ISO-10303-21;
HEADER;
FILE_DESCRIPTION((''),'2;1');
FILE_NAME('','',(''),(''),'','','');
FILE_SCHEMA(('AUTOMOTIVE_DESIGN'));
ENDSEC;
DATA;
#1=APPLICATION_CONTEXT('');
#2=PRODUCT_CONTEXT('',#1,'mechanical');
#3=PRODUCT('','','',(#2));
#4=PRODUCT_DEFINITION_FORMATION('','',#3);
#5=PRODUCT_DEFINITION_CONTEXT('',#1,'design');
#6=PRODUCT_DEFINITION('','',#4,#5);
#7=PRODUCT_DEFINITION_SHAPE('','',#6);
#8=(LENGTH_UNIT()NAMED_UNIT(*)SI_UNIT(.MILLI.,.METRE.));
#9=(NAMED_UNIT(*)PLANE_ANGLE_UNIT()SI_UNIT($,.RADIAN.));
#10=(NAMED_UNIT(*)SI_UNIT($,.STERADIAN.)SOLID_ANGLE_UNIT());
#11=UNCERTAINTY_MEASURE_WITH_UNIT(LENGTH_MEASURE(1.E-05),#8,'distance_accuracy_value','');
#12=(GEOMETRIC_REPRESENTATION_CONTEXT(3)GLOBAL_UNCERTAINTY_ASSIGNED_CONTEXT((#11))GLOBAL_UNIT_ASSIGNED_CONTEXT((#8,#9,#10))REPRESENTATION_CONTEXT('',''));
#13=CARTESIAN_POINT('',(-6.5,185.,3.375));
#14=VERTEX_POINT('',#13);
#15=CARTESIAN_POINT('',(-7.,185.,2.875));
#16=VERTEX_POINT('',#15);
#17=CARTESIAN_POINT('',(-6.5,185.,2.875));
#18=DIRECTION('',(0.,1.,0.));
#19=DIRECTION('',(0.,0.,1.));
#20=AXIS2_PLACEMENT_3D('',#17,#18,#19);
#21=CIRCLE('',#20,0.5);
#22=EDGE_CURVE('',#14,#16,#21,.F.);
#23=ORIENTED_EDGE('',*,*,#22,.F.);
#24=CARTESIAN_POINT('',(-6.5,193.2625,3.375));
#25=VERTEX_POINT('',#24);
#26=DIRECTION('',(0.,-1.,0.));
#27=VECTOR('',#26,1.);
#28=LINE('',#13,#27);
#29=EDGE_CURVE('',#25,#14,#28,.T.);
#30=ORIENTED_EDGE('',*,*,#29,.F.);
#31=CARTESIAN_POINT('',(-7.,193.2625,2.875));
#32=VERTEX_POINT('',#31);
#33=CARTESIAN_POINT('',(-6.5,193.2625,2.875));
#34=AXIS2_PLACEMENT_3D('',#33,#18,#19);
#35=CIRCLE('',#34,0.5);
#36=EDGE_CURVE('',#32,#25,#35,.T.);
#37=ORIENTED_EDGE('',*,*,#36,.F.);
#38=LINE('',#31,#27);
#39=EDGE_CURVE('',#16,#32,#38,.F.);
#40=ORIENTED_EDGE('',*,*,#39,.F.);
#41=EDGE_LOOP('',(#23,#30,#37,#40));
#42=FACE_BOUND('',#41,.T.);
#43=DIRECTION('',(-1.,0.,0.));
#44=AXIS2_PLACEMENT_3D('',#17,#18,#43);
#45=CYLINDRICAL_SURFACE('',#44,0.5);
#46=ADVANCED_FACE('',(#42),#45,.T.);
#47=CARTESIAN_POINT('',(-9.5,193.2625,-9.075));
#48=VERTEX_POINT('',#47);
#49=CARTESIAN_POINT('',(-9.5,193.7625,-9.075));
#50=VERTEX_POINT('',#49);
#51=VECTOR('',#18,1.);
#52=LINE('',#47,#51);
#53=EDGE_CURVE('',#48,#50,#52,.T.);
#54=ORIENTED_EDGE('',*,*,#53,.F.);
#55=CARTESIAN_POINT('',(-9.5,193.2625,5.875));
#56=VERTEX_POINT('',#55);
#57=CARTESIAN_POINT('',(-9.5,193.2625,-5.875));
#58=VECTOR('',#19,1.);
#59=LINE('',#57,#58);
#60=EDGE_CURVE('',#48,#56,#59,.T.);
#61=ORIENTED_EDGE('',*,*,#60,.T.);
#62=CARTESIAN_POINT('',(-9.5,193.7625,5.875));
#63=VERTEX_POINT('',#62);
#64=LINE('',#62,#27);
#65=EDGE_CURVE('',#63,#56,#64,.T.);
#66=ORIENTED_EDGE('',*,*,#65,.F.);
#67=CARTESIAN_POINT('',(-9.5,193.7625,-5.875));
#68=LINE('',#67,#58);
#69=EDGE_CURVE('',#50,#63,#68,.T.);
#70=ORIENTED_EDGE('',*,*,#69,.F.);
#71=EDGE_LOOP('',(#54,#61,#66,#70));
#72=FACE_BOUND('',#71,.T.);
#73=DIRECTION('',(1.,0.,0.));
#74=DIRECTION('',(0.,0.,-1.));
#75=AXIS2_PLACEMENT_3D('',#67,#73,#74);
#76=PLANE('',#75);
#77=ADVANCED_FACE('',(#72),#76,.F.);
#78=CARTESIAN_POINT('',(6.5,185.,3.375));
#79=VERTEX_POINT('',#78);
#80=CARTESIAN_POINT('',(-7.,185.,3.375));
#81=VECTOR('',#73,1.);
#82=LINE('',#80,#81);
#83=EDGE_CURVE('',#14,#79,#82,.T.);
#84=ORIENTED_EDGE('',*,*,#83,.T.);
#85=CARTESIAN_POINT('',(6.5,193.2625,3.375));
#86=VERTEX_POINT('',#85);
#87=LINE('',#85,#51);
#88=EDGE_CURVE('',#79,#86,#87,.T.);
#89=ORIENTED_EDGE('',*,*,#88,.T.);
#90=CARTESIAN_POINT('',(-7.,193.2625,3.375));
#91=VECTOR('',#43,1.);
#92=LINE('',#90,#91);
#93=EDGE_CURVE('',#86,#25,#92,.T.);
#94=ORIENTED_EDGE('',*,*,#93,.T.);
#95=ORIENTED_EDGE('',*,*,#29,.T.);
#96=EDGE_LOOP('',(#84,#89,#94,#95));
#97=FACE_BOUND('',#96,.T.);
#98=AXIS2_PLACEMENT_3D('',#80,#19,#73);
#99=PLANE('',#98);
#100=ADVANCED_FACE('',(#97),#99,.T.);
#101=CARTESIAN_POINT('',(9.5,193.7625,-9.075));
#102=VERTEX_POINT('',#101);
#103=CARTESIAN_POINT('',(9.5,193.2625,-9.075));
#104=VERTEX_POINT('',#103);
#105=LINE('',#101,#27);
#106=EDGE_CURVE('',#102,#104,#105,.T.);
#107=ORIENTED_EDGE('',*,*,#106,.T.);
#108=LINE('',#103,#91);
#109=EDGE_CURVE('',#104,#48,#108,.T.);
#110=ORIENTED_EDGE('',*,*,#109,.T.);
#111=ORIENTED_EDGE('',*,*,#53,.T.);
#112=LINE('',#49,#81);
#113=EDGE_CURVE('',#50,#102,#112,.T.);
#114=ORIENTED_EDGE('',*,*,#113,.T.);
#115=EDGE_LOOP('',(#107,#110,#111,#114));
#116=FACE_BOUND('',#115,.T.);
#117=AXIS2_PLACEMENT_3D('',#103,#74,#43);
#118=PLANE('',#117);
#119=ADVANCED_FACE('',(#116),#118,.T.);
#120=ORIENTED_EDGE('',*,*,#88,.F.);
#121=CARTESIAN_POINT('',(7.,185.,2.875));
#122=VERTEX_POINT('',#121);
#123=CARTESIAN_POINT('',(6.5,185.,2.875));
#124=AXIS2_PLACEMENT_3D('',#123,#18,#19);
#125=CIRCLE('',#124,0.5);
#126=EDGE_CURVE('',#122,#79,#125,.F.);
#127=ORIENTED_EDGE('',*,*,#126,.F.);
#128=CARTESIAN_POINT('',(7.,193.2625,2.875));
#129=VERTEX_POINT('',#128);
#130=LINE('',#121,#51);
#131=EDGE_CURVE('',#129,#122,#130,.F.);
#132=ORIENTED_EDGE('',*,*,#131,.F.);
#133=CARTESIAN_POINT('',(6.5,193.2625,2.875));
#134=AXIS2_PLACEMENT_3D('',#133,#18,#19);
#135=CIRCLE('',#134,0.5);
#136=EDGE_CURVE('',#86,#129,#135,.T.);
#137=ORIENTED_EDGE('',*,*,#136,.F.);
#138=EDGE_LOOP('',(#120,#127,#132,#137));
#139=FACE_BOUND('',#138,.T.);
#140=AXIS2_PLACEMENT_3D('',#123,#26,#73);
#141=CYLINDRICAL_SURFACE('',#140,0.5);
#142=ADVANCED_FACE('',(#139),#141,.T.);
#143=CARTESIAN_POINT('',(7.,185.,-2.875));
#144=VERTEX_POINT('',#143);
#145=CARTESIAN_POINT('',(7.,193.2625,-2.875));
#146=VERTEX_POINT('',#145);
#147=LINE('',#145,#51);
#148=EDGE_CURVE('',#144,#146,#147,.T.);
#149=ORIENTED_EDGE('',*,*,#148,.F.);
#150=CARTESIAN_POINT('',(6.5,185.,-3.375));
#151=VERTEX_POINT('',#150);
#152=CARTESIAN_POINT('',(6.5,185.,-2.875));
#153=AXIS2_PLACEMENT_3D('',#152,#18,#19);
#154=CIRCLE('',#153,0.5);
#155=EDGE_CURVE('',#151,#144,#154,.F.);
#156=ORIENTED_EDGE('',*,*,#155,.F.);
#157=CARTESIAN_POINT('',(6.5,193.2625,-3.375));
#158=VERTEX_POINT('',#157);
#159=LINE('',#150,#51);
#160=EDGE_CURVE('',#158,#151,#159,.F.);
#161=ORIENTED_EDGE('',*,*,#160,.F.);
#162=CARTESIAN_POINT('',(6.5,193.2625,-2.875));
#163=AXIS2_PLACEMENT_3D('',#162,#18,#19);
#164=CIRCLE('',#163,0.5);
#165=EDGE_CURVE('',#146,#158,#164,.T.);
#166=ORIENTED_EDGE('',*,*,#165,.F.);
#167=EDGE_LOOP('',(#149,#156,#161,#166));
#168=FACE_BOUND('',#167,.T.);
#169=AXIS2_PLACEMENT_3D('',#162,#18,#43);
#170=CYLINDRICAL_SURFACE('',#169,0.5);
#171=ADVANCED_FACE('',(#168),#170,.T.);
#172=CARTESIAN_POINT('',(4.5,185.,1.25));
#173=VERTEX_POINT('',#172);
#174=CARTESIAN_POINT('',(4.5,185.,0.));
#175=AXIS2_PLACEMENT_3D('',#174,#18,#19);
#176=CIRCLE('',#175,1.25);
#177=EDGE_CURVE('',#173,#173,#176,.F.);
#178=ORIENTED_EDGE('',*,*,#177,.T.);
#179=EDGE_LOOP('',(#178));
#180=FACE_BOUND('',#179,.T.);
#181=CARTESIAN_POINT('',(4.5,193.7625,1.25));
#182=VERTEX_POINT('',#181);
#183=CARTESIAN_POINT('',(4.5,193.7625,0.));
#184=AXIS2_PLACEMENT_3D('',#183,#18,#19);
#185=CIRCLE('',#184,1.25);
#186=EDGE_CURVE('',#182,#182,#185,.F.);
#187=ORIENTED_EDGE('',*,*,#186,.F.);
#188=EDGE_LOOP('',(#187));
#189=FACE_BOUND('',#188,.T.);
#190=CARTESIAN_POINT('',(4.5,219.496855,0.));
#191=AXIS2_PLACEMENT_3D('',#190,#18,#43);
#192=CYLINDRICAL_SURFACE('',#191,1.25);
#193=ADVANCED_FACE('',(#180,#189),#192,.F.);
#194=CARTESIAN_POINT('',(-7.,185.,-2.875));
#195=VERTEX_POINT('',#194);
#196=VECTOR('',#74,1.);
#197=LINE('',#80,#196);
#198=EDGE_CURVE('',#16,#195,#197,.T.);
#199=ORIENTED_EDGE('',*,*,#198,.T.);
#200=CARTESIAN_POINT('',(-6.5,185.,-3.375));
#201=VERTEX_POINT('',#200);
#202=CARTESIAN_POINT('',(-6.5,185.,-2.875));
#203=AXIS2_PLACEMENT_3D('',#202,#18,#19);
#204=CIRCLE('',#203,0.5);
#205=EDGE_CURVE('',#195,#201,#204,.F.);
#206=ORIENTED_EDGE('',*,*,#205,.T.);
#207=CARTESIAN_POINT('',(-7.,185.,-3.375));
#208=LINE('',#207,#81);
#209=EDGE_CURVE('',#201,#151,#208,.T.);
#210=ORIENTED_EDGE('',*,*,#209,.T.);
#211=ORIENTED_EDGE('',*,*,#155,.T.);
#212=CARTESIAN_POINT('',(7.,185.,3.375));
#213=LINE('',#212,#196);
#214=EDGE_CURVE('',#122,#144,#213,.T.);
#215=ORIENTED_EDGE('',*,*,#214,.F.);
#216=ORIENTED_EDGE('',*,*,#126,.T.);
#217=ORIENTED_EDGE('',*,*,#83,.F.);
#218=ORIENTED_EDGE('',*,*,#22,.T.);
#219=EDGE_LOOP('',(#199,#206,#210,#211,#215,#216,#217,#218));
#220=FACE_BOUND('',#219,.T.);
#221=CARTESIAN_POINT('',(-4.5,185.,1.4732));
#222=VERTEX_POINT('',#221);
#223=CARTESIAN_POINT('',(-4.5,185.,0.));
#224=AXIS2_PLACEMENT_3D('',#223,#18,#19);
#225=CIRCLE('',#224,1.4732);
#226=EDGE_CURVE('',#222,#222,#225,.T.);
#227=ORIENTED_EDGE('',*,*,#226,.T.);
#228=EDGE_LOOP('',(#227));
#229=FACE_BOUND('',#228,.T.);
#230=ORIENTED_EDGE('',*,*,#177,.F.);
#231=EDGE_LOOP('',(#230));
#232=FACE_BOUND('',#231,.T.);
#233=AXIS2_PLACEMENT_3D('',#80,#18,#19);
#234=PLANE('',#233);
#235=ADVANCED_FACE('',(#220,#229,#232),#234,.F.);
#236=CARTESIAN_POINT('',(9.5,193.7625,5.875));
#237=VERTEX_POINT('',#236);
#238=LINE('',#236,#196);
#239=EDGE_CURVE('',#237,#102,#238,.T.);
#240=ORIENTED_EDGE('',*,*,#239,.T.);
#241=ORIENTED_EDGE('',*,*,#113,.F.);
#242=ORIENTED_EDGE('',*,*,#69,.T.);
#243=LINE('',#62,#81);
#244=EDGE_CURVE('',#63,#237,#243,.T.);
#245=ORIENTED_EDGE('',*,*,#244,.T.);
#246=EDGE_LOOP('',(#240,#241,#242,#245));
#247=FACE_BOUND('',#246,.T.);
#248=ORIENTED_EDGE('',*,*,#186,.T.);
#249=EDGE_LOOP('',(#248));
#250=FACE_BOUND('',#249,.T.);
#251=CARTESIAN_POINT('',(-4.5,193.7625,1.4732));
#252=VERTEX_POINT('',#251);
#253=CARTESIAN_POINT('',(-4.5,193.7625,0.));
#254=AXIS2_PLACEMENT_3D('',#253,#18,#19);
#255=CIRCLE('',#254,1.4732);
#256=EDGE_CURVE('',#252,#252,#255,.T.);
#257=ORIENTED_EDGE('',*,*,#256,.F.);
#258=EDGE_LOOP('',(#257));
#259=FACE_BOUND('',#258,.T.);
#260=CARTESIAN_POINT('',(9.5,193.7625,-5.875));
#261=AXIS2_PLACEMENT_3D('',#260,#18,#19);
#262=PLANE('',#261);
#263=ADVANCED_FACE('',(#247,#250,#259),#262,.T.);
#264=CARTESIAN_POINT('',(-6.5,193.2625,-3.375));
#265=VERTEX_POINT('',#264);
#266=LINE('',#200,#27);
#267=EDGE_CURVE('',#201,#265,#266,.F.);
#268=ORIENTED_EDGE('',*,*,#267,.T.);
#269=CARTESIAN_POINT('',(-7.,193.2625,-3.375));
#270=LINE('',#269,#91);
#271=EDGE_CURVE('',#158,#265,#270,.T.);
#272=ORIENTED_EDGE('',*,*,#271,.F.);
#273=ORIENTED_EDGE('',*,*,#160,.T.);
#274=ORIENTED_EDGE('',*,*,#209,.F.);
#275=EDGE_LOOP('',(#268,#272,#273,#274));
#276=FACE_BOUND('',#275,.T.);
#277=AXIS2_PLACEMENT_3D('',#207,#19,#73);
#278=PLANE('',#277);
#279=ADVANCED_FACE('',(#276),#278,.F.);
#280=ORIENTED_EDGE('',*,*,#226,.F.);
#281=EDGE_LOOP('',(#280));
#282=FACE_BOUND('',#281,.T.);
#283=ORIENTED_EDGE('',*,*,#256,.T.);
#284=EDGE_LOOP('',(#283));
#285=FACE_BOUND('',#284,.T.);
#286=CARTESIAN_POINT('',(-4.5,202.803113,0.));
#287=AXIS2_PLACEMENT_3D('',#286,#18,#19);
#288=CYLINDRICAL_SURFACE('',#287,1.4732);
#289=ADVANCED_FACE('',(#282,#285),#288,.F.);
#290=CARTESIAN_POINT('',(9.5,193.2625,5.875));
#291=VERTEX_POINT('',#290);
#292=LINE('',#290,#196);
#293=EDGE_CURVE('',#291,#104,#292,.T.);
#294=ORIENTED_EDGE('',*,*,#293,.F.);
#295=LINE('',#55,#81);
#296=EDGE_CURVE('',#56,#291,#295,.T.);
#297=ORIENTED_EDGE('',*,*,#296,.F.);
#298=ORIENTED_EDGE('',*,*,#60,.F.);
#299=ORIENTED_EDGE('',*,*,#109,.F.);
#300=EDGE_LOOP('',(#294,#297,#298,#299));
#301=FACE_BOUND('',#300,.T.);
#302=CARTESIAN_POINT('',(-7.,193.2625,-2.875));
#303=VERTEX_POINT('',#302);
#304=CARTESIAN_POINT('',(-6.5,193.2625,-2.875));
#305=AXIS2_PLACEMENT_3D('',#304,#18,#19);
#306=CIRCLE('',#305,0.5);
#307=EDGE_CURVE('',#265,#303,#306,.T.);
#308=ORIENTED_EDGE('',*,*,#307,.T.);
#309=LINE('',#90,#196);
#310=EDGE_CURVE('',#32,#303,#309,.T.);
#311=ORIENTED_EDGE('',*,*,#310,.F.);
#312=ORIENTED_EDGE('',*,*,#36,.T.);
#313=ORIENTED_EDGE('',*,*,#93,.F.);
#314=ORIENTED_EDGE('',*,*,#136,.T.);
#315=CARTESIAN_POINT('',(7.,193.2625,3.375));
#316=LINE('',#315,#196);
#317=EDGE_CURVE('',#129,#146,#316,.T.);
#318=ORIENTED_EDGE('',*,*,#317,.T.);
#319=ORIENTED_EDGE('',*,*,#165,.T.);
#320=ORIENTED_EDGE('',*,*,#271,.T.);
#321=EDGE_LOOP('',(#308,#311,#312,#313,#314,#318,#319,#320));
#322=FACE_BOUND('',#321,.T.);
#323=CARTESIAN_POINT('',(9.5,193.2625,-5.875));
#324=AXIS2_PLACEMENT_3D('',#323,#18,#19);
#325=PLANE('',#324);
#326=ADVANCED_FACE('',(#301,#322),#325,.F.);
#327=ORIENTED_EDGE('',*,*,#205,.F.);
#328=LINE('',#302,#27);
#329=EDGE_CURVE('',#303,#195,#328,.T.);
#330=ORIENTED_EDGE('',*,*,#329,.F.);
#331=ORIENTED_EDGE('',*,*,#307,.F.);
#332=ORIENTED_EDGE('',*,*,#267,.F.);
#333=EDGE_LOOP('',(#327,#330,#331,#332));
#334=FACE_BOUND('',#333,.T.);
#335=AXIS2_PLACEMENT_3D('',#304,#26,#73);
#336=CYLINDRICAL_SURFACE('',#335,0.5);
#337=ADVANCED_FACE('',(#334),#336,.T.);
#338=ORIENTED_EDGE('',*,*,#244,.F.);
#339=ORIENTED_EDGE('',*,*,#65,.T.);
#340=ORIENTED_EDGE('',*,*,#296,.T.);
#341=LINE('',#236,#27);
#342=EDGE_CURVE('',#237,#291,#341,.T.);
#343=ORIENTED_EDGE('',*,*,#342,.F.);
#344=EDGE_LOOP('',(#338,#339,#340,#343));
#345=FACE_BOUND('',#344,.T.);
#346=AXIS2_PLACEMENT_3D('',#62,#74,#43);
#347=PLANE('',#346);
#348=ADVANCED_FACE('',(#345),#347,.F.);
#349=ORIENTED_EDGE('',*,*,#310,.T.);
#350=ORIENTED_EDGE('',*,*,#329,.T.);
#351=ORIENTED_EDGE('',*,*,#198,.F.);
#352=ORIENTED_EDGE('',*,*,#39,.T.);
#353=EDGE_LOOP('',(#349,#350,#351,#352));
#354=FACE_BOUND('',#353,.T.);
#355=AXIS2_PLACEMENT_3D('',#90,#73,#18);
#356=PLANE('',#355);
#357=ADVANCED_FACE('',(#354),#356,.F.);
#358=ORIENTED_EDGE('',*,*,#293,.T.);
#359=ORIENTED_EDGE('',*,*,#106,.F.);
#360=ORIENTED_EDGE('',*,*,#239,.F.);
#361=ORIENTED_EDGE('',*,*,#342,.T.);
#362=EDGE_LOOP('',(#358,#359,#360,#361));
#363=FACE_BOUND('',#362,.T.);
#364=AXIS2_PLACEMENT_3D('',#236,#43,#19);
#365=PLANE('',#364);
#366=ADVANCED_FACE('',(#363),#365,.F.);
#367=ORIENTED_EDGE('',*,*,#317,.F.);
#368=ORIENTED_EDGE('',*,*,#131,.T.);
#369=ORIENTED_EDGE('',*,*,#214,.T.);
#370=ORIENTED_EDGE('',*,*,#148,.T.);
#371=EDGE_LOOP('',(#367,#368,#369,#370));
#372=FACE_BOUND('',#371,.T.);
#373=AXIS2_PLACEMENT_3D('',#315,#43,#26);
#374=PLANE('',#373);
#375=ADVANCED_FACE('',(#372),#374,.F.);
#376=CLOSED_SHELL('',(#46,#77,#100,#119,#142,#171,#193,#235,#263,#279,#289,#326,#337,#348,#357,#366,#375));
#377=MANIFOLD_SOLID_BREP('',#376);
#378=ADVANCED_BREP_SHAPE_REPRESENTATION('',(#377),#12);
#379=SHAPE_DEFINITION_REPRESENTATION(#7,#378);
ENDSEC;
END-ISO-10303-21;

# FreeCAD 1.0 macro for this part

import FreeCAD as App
import Part
import Sketcher
from FreeCAD import Vector


def edges_at(feature, points):
    """Names of the edges that pass closest to the given points."""
    edges = feature.Shape.Edges
    near = lambda p: min(range(len(edges)), key=lambda i: edges[i].distToShape(Part.Vertex(*p))[0])
    return sorted({f"Edge{near(p) + 1}" for p in points})


def add_polygon(sketch, points):
    """Adds a closed chain of lines whose ends are joined by coincident constraints."""
    first, n = sketch.GeometryCount, len(points)
    for a, b in zip(points, points[1:] + points[:1]):
        sketch.addGeometry(Part.LineSegment(App.Vector(*a, 0), App.Vector(*b, 0)), False)
    for i in range(n):
        sketch.addConstraint(Sketcher.Constraint("Coincident", first + i, 2, first + (i + 1) % n, 1))

doc = App.newDocument("Part")
params = doc.addObject("Spreadsheet::Sheet", "Params")
for row, (alias, value) in enumerate([
    ("sketch1_width", "14 mm"),
    ("pad1_length", "6.75 mm"),
    ("sketch2_width", "19 mm"),
    ("sketch2_height", "11.75 mm"),
    ("pad2_length", "0.5 mm"),
    ("groove_angle", "360 deg"),
    ("sketch4_height", "20 mm"),
    ("sketch4_width", "1.25 mm"),
    ("groove2_angle", "360 deg"),
    ("fillet_radius", "0.5 mm"),
    ("sketch5_width", "19 mm"),
    ("sketch5_height", "0.5 mm"),
    ("pad3_length", "3.2 mm"),
], start=1):
    params.set(f"A{row}", alias)
    params.set(f"B{row}", "=" + value)
    params.setAlias(f"B{row}", alias)

body = doc.addObject("PartDesign::Body", "Body")

# Sketch on XY plane
sketch1 = body.newObject("Sketcher::SketchObject", "Sketch")
sketch1.AttachmentSupport = (doc.getObject("XY_Plane"), [""])
sketch1.MapMode = "FlatFace"
add_polygon(sketch1, [(-7, 193), (-7, 185), (7, 185), (7, 193)])  # lines 0-3
sketch1.addConstraint([
    Sketcher.Constraint("Vertical", 0),
    Sketcher.Constraint("Horizontal", 1),
    Sketcher.Constraint("Vertical", 2),
    Sketcher.Constraint("Horizontal", 3),
    Sketcher.Constraint("DistanceX", 1, 1, 1, 2, 14.0),
    Sketcher.Constraint("DistanceX", 0, 2, -1, 1, 7.0),
    Sketcher.Constraint("DistanceY", -1, 1, 0, 2, 185.0),
    Sketcher.Constraint("DistanceY", 0, 2, 0, 1, 8.2625),
])
sketch1.setExpression("Constraints[8]", "Params.sketch1_width")
pad1 = body.newObject("PartDesign::Pad", "Pad")
pad1.Profile = sketch1
pad1.setExpression("Length", "Params.pad1_length")
pad1.Midplane = True

# Sketch on XZ plane
sketch2 = body.newObject("Sketcher::SketchObject", "Sketch001")
sketch2.AttachmentSupport = (doc.getObject("XZ_Plane"), [""])
sketch2.MapMode = "FlatFace"
sketch2.AttachmentOffset = App.Placement(Vector(0, 0, -193.2625), App.Rotation())
add_polygon(sketch2, [(-10, -6), (-10, 6), (10, 6), (10, -6)])  # lines 0-3
sketch2.addConstraint([
    Sketcher.Constraint("Vertical", 0),
    Sketcher.Constraint("Horizontal", 1),
    Sketcher.Constraint("Vertical", 2),
    Sketcher.Constraint("Horizontal", 3),
    Sketcher.Constraint("Symmetric", 0, 2, 2, 2, -1, 1),
    Sketcher.Constraint("DistanceX", 1, 1, 1, 2, 19.0),
    Sketcher.Constraint("DistanceY", 0, 1, 0, 2, 11.75),
])
sketch2.setExpression("Constraints[9]", "Params.sketch2_width")
sketch2.setExpression("Constraints[10]", "Params.sketch2_height")
pad2 = body.newObject("PartDesign::Pad", "Pad001")
pad2.Profile = sketch2
pad2.setExpression("Length", "Params.pad2_length")
pad2.Reversed = True

# Sketch on XY plane
sketch3 = body.newObject("Sketcher::SketchObject", "Sketch002")
sketch3.AttachmentSupport = (doc.getObject("XY_Plane"), [""])
sketch3.MapMode = "FlatFace"
add_polygon(sketch3, [(-4.5, 181.9), (-4.5, 198.4), (-3, 198.4), (-3, 181.9)])  # lines 0-3
sketch3.addGeometry(Part.LineSegment(Vector(-4.5, 198.4, 0), Vector(-4.5, 181.9, 0)), True)  # axis
sketch3.addConstraint([
    Sketcher.Constraint("Vertical", 0),
    Sketcher.Constraint("Horizontal", 1),
    Sketcher.Constraint("Vertical", 2),
    Sketcher.Constraint("Horizontal", 3),
    Sketcher.Constraint("Vertical", 4),
    Sketcher.Constraint("Coincident", 4, 1, 0, 2),
    Sketcher.Constraint("Horizontal", 2, 2, 4, 2),
    Sketcher.Constraint("DistanceX", 0, 2, -1, 1, 4.5),
    Sketcher.Constraint("DistanceX", 1, 1, 1, 2, 1.4732),
    Sketcher.Constraint("DistanceY", 0, 1, 0, 2, 16.500973),
    Sketcher.Constraint("DistanceY", -1, 1, 0, 2, 198.441716),
])
groove = body.newObject("PartDesign::Groove", "Groove")
groove.Profile = sketch3
groove.ReferenceAxis = (sketch3, ["Axis0"])
groove.setExpression("Angle", "Params.groove_angle")

# Sketch on XY plane
sketch4 = body.newObject("Sketcher::SketchObject", "Sketch003")
sketch4.AttachmentSupport = (doc.getObject("XY_Plane"), [""])
sketch4.MapMode = "FlatFace"
add_polygon(sketch4, [(4.5, 201.9), (4.5, 181.9), (5.8, 181.9), (5.8, 201.9)])  # lines 0-3
sketch4.addGeometry(Part.LineSegment(Vector(4.5, 201.9, 0), Vector(4.5, 181.9, 0)), True)  # axis
sketch4.addConstraint([
    Sketcher.Constraint("Vertical", 0),
    Sketcher.Constraint("Horizontal", 1),
    Sketcher.Constraint("Vertical", 2),
    Sketcher.Constraint("Horizontal", 3),
    Sketcher.Constraint("Vertical", 4),
    Sketcher.Constraint("Coincident", 4, 1, 3, 2),
    Sketcher.Constraint("Horizontal", 1, 2, 4, 2),
    Sketcher.Constraint("DistanceY", 0, 2, 0, 1, 20.0),
    Sketcher.Constraint("DistanceX", 1, 1, 1, 2, 1.25),
    Sketcher.Constraint("DistanceX", -1, 1, 0, 2, 4.5),
    Sketcher.Constraint("DistanceY", -1, 1, 0, 2, 181.895854),
])
sketch4.setExpression("Constraints[11]", "Params.sketch4_height")
sketch4.setExpression("Constraints[12]", "Params.sketch4_width")
groove2 = body.newObject("PartDesign::Groove", "Groove001")
groove2.Profile = sketch4
groove2.ReferenceAxis = (sketch4, ["Axis0"])
groove2.setExpression("Angle", "Params.groove2_angle")
doc.recompute()

fillet = body.newObject("PartDesign::Fillet", "Fillet")
fillet.Base = (groove2, edges_at(groove2, [
    (7, 189.131, 3.375),
    (-7, 189.131, 3.375),
    (7, 189.131, -3.375),
    (-7, 189.131, -3.375),
]))
fillet.setExpression("Radius", "Params.fillet_radius")

# Sketch on XY plane
sketch5 = body.newObject("Sketcher::SketchObject", "Sketch004")
sketch5.AttachmentSupport = (doc.getObject("XY_Plane"), [""])
sketch5.MapMode = "FlatFace"
sketch5.AttachmentOffset = App.Placement(Vector(0, 0, -5.875), App.Rotation())
add_polygon(sketch5, [(9.5, 193.8), (9.5, 193.3), (-9.5, 193.3), (-9.5, 193.8)])  # lines 0-3
sketch5.addConstraint([
    Sketcher.Constraint("Vertical", 0),
    Sketcher.Constraint("Horizontal", 1),
    Sketcher.Constraint("Vertical", 2),
    Sketcher.Constraint("Horizontal", 3),
    Sketcher.Constraint("DistanceX", 1, 2, 1, 1, 19.0),
    Sketcher.Constraint("DistanceY", 0, 2, 0, 1, 0.5),
    Sketcher.Constraint("DistanceX", -1, 1, 0, 2, 9.5),
    Sketcher.Constraint("DistanceY", -1, 1, 0, 2, 193.2625),
])
sketch5.setExpression("Constraints[8]", "Params.sketch5_width")
sketch5.setExpression("Constraints[9]", "Params.sketch5_height")
pad3 = body.newObject("PartDesign::Pad", "Pad002")
pad3.Profile = sketch5
pad3.setExpression("Length", "Params.pad3_length")
pad3.Reversed = True

doc.recompute()
